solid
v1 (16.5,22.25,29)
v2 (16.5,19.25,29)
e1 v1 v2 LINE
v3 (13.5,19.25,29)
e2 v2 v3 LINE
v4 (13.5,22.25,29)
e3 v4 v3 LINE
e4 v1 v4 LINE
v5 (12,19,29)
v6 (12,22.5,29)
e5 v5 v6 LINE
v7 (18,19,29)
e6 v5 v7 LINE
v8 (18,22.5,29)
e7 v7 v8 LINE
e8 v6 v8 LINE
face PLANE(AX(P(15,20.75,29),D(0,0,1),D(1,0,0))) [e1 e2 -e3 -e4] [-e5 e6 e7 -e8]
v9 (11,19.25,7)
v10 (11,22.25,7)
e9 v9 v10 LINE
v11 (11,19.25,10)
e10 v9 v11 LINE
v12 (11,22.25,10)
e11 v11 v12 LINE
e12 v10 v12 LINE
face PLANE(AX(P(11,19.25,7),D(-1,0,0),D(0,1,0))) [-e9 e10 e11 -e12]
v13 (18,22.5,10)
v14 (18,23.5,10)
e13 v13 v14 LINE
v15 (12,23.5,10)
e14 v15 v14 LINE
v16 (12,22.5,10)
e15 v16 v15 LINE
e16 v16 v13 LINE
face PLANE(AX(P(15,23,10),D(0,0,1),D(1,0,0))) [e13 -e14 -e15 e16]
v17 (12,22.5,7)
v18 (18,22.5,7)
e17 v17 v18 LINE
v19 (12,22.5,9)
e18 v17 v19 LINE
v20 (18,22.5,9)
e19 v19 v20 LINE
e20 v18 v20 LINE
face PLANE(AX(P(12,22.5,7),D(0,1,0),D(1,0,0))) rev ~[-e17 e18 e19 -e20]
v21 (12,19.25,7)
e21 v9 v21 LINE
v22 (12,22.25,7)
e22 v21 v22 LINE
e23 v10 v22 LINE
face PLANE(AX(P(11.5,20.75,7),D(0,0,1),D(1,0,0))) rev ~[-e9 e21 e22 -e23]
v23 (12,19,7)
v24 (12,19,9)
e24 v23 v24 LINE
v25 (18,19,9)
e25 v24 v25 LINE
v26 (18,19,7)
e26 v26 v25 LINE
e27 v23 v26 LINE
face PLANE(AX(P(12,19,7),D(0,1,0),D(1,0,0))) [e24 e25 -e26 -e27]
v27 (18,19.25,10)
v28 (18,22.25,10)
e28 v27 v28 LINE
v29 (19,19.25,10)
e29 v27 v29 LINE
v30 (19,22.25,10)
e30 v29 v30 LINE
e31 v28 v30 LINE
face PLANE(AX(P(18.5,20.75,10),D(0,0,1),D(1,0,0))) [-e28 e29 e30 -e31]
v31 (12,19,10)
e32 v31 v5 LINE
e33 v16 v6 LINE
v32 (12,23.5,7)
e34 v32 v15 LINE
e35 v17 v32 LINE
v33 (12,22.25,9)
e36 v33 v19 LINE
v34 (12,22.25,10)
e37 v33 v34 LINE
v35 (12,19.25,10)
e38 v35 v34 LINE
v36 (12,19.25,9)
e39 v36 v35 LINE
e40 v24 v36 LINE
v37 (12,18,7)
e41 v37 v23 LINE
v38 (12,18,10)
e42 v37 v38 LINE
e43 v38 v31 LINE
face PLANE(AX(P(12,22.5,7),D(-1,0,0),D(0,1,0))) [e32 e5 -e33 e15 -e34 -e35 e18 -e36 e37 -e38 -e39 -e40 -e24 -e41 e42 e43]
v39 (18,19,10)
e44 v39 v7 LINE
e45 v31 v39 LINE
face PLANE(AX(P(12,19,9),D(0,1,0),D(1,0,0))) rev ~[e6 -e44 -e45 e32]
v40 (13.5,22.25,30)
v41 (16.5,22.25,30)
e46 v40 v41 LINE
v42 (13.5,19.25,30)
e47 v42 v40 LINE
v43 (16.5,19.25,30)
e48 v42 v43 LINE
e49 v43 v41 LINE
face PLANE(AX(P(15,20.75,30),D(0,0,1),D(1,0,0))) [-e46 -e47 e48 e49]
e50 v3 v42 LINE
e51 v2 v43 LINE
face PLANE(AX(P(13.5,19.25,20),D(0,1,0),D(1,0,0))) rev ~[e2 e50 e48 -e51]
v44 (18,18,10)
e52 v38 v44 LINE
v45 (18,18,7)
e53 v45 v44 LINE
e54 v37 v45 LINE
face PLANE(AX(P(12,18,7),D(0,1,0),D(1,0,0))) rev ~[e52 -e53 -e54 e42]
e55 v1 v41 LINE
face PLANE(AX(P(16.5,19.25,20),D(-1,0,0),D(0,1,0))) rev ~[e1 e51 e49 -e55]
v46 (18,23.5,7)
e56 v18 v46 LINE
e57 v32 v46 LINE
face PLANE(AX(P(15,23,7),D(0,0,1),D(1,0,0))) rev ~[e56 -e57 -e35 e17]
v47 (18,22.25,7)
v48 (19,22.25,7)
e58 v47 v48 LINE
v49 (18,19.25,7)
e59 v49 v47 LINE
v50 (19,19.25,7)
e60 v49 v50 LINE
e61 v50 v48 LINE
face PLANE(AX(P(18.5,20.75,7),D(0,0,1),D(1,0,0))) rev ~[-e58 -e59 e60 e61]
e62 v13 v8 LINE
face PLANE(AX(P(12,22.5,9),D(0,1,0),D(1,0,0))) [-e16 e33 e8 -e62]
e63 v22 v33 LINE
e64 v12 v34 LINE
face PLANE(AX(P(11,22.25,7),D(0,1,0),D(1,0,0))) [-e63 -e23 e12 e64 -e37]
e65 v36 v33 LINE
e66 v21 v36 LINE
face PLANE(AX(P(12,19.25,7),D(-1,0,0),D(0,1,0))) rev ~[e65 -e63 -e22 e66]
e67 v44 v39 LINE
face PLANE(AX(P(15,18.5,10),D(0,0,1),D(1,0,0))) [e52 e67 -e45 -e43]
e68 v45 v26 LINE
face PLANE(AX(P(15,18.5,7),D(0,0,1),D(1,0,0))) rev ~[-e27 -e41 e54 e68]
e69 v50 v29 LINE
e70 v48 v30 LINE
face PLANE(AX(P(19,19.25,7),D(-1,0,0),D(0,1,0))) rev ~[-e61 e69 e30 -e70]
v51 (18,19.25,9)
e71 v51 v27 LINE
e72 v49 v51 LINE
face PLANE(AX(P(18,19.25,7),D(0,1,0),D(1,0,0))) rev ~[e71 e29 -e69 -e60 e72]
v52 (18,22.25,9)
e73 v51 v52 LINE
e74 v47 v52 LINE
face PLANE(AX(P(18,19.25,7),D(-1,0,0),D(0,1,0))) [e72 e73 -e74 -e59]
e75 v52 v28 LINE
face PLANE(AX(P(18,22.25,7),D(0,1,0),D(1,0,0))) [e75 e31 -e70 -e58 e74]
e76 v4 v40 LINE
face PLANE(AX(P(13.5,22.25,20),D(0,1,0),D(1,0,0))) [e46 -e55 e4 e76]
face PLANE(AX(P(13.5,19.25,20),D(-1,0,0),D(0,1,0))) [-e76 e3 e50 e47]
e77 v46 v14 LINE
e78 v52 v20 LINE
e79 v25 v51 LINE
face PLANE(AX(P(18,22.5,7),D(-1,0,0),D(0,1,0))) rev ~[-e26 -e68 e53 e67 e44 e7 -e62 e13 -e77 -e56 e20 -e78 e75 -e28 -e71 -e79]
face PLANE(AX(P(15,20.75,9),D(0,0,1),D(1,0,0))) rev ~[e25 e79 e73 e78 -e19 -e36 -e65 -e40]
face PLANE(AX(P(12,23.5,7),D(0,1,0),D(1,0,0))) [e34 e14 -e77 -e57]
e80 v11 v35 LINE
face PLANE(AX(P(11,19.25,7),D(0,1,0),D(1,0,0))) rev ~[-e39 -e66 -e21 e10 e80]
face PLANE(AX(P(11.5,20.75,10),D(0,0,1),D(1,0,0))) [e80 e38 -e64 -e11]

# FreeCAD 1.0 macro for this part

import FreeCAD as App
import Part
import Sketcher


def add_polygon(sketch, points):
    """Adds a closed chain of lines whose ends are joined by coincident constraints."""
    first, n = sketch.GeometryCount, len(points)
    for a, b in zip(points, points[1:] + points[:1]):
        sketch.addGeometry(Part.LineSegment(App.Vector(*a, 0), App.Vector(*b, 0)), False)
    for i in range(n):
        sketch.addConstraint(Sketcher.Constraint("Coincident", first + i, 2, first + (i + 1) % n, 1))

doc = App.newDocument("Part")
body = doc.addObject("PartDesign::Body", "Body")

# Sketch on XY plane
sketch1 = body.newObject("Sketcher::SketchObject", "Sketch")
sketch1.AttachmentSupport = (doc.getObject("XY_Plane"), [""])
sketch1.MapMode = "FlatFace"
sketch1.AttachmentOffset = App.Placement(App.Vector(0, 0, 20), App.Rotation())
add_polygon(sketch1, [(13.5, 22.25), (13.5, 19.25), (16.5, 19.25), (16.5, 22.25)])  # lines 0-3
sketch1.addConstraint([
    Sketcher.Constraint("Vertical", 0),
    Sketcher.Constraint("Horizontal", 1),
    Sketcher.Constraint("Vertical", 2),
    Sketcher.Constraint("Horizontal", 3),
    Sketcher.Constraint("Equal", 3, 0),
    Sketcher.Constraint("DistanceX", 1, 1, 1, 2, 3.0),
    Sketcher.Constraint("DistanceX", -1, 1, 0, 2, 13.5),
    Sketcher.Constraint("DistanceY", -1, 1, 0, 2, 19.25),
])
pad1 = body.newObject("PartDesign::Pad", "Pad")
pad1.Profile = sketch1
pad1.Length = 10
body2 = doc.addObject("PartDesign::Body", "Body001")

# Sketch on XY plane
sketch2 = body2.newObject("Sketcher::SketchObject", "Sketch001")
sketch2.AttachmentSupport = (doc.getObject("XY_Plane001"), [""])
sketch2.MapMode = "FlatFace"
sketch2.AttachmentOffset = App.Placement(App.Vector(0, 0, 7), App.Rotation())
add_polygon(sketch2, [(11, 10.25), (11, 7.25), (12, 7.25), (12, 10.25)])  # lines 0-3
sketch2.addConstraint([
    Sketcher.Constraint("Vertical", 0),
    Sketcher.Constraint("Horizontal", 1),
    Sketcher.Constraint("Vertical", 2),
    Sketcher.Constraint("Horizontal", 3),
    Sketcher.Constraint("DistanceX", 1, 1, 1, 2, 1.0),
    Sketcher.Constraint("DistanceY", 0, 2, 0, 1, 3.0),
    Sketcher.Constraint("DistanceX", -1, 1, 0, 2, 11.0),
    Sketcher.Constraint("DistanceY", -1, 1, 0, 2, 7.25),
])
pad2 = body2.newObject("PartDesign::Pad", "Pad001")
pad2.Profile = sketch2
pad2.Length = 3
body3 = doc.addObject("PartDesign::Body", "Body002")

# Sketch on XY plane
sketch3 = body3.newObject("Sketcher::SketchObject", "Sketch002")
sketch3.AttachmentSupport = (doc.getObject("XY_Plane002"), [""])
sketch3.MapMode = "FlatFace"
sketch3.AttachmentOffset = App.Placement(App.Vector(0, 0, 7), App.Rotation())
add_polygon(sketch3, [(18, 10.25), (18, 7.25), (19, 7.25), (19, 10.25)])  # lines 0-3
sketch3.addConstraint([
    Sketcher.Constraint("Vertical", 0),
    Sketcher.Constraint("Horizontal", 1),
    Sketcher.Constraint("Vertical", 2),
    Sketcher.Constraint("Horizontal", 3),
    Sketcher.Constraint("DistanceX", 1, 1, 1, 2, 1.0),
    Sketcher.Constraint("DistanceY", 0, 2, 0, 1, 3.0),
    Sketcher.Constraint("DistanceX", -1, 1, 0, 2, 18.0),
    Sketcher.Constraint("DistanceY", -1, 1, 0, 2, 7.25),
])
pad3 = body3.newObject("PartDesign::Pad", "Pad002")
pad3.Profile = sketch3
pad3.Length = 3
body4 = doc.addObject("PartDesign::Body", "Body003")

# Sketch on XY plane
sketch4 = body4.newObject("Sketcher::SketchObject", "Sketch003")
sketch4.AttachmentSupport = (doc.getObject("XY_Plane003"), [""])
sketch4.MapMode = "FlatFace"
sketch4.AttachmentOffset = App.Placement(App.Vector(0, 0, 7), App.Rotation())
add_polygon(sketch4, [(12, 7), (12, 6), (18, 6), (18, 7)])  # lines 0-3
sketch4.addConstraint([
    Sketcher.Constraint("Vertical", 0),
    Sketcher.Constraint("Horizontal", 1),
    Sketcher.Constraint("Vertical", 2),
    Sketcher.Constraint("Horizontal", 3),
    Sketcher.Constraint("DistanceX", 1, 1, 1, 2, 6.0),
    Sketcher.Constraint("DistanceY", 0, 2, 0, 1, 1.0),
    Sketcher.Constraint("DistanceX", -1, 1, 0, 2, 12.0),
    Sketcher.Constraint("DistanceY", -1, 1, 0, 2, 6.0),
])
pad4 = body4.newObject("PartDesign::Pad", "Pad003")
pad4.Profile = sketch4
pad4.Length = 3
body5 = doc.addObject("PartDesign::Body", "Body004")

# Sketch on XY plane
sketch5 = body5.newObject("Sketcher::SketchObject", "Sketch004")
sketch5.AttachmentSupport = (doc.getObject("XY_Plane004"), [""])
sketch5.MapMode = "FlatFace"
sketch5.AttachmentOffset = App.Placement(App.Vector(0, 0, 7), App.Rotation())
add_polygon(sketch5, [(12, 11.5), (12, 10.5), (18, 10.5), (18, 11.5)])  # lines 0-3
sketch5.addConstraint([
    Sketcher.Constraint("Vertical", 0),
    Sketcher.Constraint("Horizontal", 1),
    Sketcher.Constraint("Vertical", 2),
    Sketcher.Constraint("Horizontal", 3),
    Sketcher.Constraint("DistanceX", 1, 1, 1, 2, 6.0),
    Sketcher.Constraint("DistanceY", 0, 2, 0, 1, 1.0),
    Sketcher.Constraint("DistanceX", -1, 1, 0, 2, 12.0),
    Sketcher.Constraint("DistanceY", -1, 1, 0, 2, 10.5),
])
pad5 = body5.newObject("PartDesign::Pad", "Pad004")
pad5.Profile = sketch5
pad5.Length = 3
body6 = doc.addObject("PartDesign::Body", "Body005")

# Sketch on XY plane
sketch6 = body6.newObject("Sketcher::SketchObject", "Sketch005")
sketch6.AttachmentSupport = (doc.getObject("XY_Plane005"), [""])
sketch6.MapMode = "FlatFace"
sketch6.AttachmentOffset = App.Placement(App.Vector(0, 0, 9), App.Rotation())
add_polygon(sketch6, [(12, 10.5), (12, 7), (18, 7), (18, 10.5)])  # lines 0-3
sketch6.addConstraint([
    Sketcher.Constraint("Vertical", 0),
    Sketcher.Constraint("Horizontal", 1),
    Sketcher.Constraint("Vertical", 2),
    Sketcher.Constraint("Horizontal", 3),
    Sketcher.Constraint("DistanceX", 1, 1, 1, 2, 6.0),
    Sketcher.Constraint("DistanceY", 0, 2, 0, 1, 3.5),
    Sketcher.Constraint("DistanceX", -1, 1, 0, 2, 12.0),
    Sketcher.Constraint("DistanceY", -1, 1, 0, 2, 7.0),
])
pad6 = body6.newObject("PartDesign::Pad", "Pad005")
pad6.Profile = sketch6
pad6.Length = 20
doc.recompute()

boolean = body6.newObject("PartDesign::Boolean", "Boolean")
boolean.Type = "Fuse"
boolean.addObjects([body2])
doc.recompute()

boolean2 = body6.newObject("PartDesign::Boolean", "Boolean001")
boolean2.Type = "Fuse"
boolean2.addObjects([body3])
doc.recompute()

boolean3 = body6.newObject("PartDesign::Boolean", "Boolean002")
boolean3.Type = "Fuse"
boolean3.addObjects([body4])
doc.recompute()

boolean4 = body6.newObject("PartDesign::Boolean", "Boolean003")
boolean4.Type = "Fuse"
boolean4.addObjects([body5])
body7 = doc.addObject("PartDesign::Body", "Body006")
doc.recompute()

body6.Placement = App.Placement(App.Vector(0, 12, 0), App.Rotation(App.Vector(0, 0, 1), 0))
boolean5 = body7.newObject("PartDesign::Boolean", "Boolean004")
boolean5.Type = "Fuse"
boolean5.addObjects([body6])
doc.recompute()

boolean6 = body7.newObject("PartDesign::Boolean", "Boolean005")
boolean6.Type = "Fuse"
boolean6.addObjects([body])

doc.recompute()
